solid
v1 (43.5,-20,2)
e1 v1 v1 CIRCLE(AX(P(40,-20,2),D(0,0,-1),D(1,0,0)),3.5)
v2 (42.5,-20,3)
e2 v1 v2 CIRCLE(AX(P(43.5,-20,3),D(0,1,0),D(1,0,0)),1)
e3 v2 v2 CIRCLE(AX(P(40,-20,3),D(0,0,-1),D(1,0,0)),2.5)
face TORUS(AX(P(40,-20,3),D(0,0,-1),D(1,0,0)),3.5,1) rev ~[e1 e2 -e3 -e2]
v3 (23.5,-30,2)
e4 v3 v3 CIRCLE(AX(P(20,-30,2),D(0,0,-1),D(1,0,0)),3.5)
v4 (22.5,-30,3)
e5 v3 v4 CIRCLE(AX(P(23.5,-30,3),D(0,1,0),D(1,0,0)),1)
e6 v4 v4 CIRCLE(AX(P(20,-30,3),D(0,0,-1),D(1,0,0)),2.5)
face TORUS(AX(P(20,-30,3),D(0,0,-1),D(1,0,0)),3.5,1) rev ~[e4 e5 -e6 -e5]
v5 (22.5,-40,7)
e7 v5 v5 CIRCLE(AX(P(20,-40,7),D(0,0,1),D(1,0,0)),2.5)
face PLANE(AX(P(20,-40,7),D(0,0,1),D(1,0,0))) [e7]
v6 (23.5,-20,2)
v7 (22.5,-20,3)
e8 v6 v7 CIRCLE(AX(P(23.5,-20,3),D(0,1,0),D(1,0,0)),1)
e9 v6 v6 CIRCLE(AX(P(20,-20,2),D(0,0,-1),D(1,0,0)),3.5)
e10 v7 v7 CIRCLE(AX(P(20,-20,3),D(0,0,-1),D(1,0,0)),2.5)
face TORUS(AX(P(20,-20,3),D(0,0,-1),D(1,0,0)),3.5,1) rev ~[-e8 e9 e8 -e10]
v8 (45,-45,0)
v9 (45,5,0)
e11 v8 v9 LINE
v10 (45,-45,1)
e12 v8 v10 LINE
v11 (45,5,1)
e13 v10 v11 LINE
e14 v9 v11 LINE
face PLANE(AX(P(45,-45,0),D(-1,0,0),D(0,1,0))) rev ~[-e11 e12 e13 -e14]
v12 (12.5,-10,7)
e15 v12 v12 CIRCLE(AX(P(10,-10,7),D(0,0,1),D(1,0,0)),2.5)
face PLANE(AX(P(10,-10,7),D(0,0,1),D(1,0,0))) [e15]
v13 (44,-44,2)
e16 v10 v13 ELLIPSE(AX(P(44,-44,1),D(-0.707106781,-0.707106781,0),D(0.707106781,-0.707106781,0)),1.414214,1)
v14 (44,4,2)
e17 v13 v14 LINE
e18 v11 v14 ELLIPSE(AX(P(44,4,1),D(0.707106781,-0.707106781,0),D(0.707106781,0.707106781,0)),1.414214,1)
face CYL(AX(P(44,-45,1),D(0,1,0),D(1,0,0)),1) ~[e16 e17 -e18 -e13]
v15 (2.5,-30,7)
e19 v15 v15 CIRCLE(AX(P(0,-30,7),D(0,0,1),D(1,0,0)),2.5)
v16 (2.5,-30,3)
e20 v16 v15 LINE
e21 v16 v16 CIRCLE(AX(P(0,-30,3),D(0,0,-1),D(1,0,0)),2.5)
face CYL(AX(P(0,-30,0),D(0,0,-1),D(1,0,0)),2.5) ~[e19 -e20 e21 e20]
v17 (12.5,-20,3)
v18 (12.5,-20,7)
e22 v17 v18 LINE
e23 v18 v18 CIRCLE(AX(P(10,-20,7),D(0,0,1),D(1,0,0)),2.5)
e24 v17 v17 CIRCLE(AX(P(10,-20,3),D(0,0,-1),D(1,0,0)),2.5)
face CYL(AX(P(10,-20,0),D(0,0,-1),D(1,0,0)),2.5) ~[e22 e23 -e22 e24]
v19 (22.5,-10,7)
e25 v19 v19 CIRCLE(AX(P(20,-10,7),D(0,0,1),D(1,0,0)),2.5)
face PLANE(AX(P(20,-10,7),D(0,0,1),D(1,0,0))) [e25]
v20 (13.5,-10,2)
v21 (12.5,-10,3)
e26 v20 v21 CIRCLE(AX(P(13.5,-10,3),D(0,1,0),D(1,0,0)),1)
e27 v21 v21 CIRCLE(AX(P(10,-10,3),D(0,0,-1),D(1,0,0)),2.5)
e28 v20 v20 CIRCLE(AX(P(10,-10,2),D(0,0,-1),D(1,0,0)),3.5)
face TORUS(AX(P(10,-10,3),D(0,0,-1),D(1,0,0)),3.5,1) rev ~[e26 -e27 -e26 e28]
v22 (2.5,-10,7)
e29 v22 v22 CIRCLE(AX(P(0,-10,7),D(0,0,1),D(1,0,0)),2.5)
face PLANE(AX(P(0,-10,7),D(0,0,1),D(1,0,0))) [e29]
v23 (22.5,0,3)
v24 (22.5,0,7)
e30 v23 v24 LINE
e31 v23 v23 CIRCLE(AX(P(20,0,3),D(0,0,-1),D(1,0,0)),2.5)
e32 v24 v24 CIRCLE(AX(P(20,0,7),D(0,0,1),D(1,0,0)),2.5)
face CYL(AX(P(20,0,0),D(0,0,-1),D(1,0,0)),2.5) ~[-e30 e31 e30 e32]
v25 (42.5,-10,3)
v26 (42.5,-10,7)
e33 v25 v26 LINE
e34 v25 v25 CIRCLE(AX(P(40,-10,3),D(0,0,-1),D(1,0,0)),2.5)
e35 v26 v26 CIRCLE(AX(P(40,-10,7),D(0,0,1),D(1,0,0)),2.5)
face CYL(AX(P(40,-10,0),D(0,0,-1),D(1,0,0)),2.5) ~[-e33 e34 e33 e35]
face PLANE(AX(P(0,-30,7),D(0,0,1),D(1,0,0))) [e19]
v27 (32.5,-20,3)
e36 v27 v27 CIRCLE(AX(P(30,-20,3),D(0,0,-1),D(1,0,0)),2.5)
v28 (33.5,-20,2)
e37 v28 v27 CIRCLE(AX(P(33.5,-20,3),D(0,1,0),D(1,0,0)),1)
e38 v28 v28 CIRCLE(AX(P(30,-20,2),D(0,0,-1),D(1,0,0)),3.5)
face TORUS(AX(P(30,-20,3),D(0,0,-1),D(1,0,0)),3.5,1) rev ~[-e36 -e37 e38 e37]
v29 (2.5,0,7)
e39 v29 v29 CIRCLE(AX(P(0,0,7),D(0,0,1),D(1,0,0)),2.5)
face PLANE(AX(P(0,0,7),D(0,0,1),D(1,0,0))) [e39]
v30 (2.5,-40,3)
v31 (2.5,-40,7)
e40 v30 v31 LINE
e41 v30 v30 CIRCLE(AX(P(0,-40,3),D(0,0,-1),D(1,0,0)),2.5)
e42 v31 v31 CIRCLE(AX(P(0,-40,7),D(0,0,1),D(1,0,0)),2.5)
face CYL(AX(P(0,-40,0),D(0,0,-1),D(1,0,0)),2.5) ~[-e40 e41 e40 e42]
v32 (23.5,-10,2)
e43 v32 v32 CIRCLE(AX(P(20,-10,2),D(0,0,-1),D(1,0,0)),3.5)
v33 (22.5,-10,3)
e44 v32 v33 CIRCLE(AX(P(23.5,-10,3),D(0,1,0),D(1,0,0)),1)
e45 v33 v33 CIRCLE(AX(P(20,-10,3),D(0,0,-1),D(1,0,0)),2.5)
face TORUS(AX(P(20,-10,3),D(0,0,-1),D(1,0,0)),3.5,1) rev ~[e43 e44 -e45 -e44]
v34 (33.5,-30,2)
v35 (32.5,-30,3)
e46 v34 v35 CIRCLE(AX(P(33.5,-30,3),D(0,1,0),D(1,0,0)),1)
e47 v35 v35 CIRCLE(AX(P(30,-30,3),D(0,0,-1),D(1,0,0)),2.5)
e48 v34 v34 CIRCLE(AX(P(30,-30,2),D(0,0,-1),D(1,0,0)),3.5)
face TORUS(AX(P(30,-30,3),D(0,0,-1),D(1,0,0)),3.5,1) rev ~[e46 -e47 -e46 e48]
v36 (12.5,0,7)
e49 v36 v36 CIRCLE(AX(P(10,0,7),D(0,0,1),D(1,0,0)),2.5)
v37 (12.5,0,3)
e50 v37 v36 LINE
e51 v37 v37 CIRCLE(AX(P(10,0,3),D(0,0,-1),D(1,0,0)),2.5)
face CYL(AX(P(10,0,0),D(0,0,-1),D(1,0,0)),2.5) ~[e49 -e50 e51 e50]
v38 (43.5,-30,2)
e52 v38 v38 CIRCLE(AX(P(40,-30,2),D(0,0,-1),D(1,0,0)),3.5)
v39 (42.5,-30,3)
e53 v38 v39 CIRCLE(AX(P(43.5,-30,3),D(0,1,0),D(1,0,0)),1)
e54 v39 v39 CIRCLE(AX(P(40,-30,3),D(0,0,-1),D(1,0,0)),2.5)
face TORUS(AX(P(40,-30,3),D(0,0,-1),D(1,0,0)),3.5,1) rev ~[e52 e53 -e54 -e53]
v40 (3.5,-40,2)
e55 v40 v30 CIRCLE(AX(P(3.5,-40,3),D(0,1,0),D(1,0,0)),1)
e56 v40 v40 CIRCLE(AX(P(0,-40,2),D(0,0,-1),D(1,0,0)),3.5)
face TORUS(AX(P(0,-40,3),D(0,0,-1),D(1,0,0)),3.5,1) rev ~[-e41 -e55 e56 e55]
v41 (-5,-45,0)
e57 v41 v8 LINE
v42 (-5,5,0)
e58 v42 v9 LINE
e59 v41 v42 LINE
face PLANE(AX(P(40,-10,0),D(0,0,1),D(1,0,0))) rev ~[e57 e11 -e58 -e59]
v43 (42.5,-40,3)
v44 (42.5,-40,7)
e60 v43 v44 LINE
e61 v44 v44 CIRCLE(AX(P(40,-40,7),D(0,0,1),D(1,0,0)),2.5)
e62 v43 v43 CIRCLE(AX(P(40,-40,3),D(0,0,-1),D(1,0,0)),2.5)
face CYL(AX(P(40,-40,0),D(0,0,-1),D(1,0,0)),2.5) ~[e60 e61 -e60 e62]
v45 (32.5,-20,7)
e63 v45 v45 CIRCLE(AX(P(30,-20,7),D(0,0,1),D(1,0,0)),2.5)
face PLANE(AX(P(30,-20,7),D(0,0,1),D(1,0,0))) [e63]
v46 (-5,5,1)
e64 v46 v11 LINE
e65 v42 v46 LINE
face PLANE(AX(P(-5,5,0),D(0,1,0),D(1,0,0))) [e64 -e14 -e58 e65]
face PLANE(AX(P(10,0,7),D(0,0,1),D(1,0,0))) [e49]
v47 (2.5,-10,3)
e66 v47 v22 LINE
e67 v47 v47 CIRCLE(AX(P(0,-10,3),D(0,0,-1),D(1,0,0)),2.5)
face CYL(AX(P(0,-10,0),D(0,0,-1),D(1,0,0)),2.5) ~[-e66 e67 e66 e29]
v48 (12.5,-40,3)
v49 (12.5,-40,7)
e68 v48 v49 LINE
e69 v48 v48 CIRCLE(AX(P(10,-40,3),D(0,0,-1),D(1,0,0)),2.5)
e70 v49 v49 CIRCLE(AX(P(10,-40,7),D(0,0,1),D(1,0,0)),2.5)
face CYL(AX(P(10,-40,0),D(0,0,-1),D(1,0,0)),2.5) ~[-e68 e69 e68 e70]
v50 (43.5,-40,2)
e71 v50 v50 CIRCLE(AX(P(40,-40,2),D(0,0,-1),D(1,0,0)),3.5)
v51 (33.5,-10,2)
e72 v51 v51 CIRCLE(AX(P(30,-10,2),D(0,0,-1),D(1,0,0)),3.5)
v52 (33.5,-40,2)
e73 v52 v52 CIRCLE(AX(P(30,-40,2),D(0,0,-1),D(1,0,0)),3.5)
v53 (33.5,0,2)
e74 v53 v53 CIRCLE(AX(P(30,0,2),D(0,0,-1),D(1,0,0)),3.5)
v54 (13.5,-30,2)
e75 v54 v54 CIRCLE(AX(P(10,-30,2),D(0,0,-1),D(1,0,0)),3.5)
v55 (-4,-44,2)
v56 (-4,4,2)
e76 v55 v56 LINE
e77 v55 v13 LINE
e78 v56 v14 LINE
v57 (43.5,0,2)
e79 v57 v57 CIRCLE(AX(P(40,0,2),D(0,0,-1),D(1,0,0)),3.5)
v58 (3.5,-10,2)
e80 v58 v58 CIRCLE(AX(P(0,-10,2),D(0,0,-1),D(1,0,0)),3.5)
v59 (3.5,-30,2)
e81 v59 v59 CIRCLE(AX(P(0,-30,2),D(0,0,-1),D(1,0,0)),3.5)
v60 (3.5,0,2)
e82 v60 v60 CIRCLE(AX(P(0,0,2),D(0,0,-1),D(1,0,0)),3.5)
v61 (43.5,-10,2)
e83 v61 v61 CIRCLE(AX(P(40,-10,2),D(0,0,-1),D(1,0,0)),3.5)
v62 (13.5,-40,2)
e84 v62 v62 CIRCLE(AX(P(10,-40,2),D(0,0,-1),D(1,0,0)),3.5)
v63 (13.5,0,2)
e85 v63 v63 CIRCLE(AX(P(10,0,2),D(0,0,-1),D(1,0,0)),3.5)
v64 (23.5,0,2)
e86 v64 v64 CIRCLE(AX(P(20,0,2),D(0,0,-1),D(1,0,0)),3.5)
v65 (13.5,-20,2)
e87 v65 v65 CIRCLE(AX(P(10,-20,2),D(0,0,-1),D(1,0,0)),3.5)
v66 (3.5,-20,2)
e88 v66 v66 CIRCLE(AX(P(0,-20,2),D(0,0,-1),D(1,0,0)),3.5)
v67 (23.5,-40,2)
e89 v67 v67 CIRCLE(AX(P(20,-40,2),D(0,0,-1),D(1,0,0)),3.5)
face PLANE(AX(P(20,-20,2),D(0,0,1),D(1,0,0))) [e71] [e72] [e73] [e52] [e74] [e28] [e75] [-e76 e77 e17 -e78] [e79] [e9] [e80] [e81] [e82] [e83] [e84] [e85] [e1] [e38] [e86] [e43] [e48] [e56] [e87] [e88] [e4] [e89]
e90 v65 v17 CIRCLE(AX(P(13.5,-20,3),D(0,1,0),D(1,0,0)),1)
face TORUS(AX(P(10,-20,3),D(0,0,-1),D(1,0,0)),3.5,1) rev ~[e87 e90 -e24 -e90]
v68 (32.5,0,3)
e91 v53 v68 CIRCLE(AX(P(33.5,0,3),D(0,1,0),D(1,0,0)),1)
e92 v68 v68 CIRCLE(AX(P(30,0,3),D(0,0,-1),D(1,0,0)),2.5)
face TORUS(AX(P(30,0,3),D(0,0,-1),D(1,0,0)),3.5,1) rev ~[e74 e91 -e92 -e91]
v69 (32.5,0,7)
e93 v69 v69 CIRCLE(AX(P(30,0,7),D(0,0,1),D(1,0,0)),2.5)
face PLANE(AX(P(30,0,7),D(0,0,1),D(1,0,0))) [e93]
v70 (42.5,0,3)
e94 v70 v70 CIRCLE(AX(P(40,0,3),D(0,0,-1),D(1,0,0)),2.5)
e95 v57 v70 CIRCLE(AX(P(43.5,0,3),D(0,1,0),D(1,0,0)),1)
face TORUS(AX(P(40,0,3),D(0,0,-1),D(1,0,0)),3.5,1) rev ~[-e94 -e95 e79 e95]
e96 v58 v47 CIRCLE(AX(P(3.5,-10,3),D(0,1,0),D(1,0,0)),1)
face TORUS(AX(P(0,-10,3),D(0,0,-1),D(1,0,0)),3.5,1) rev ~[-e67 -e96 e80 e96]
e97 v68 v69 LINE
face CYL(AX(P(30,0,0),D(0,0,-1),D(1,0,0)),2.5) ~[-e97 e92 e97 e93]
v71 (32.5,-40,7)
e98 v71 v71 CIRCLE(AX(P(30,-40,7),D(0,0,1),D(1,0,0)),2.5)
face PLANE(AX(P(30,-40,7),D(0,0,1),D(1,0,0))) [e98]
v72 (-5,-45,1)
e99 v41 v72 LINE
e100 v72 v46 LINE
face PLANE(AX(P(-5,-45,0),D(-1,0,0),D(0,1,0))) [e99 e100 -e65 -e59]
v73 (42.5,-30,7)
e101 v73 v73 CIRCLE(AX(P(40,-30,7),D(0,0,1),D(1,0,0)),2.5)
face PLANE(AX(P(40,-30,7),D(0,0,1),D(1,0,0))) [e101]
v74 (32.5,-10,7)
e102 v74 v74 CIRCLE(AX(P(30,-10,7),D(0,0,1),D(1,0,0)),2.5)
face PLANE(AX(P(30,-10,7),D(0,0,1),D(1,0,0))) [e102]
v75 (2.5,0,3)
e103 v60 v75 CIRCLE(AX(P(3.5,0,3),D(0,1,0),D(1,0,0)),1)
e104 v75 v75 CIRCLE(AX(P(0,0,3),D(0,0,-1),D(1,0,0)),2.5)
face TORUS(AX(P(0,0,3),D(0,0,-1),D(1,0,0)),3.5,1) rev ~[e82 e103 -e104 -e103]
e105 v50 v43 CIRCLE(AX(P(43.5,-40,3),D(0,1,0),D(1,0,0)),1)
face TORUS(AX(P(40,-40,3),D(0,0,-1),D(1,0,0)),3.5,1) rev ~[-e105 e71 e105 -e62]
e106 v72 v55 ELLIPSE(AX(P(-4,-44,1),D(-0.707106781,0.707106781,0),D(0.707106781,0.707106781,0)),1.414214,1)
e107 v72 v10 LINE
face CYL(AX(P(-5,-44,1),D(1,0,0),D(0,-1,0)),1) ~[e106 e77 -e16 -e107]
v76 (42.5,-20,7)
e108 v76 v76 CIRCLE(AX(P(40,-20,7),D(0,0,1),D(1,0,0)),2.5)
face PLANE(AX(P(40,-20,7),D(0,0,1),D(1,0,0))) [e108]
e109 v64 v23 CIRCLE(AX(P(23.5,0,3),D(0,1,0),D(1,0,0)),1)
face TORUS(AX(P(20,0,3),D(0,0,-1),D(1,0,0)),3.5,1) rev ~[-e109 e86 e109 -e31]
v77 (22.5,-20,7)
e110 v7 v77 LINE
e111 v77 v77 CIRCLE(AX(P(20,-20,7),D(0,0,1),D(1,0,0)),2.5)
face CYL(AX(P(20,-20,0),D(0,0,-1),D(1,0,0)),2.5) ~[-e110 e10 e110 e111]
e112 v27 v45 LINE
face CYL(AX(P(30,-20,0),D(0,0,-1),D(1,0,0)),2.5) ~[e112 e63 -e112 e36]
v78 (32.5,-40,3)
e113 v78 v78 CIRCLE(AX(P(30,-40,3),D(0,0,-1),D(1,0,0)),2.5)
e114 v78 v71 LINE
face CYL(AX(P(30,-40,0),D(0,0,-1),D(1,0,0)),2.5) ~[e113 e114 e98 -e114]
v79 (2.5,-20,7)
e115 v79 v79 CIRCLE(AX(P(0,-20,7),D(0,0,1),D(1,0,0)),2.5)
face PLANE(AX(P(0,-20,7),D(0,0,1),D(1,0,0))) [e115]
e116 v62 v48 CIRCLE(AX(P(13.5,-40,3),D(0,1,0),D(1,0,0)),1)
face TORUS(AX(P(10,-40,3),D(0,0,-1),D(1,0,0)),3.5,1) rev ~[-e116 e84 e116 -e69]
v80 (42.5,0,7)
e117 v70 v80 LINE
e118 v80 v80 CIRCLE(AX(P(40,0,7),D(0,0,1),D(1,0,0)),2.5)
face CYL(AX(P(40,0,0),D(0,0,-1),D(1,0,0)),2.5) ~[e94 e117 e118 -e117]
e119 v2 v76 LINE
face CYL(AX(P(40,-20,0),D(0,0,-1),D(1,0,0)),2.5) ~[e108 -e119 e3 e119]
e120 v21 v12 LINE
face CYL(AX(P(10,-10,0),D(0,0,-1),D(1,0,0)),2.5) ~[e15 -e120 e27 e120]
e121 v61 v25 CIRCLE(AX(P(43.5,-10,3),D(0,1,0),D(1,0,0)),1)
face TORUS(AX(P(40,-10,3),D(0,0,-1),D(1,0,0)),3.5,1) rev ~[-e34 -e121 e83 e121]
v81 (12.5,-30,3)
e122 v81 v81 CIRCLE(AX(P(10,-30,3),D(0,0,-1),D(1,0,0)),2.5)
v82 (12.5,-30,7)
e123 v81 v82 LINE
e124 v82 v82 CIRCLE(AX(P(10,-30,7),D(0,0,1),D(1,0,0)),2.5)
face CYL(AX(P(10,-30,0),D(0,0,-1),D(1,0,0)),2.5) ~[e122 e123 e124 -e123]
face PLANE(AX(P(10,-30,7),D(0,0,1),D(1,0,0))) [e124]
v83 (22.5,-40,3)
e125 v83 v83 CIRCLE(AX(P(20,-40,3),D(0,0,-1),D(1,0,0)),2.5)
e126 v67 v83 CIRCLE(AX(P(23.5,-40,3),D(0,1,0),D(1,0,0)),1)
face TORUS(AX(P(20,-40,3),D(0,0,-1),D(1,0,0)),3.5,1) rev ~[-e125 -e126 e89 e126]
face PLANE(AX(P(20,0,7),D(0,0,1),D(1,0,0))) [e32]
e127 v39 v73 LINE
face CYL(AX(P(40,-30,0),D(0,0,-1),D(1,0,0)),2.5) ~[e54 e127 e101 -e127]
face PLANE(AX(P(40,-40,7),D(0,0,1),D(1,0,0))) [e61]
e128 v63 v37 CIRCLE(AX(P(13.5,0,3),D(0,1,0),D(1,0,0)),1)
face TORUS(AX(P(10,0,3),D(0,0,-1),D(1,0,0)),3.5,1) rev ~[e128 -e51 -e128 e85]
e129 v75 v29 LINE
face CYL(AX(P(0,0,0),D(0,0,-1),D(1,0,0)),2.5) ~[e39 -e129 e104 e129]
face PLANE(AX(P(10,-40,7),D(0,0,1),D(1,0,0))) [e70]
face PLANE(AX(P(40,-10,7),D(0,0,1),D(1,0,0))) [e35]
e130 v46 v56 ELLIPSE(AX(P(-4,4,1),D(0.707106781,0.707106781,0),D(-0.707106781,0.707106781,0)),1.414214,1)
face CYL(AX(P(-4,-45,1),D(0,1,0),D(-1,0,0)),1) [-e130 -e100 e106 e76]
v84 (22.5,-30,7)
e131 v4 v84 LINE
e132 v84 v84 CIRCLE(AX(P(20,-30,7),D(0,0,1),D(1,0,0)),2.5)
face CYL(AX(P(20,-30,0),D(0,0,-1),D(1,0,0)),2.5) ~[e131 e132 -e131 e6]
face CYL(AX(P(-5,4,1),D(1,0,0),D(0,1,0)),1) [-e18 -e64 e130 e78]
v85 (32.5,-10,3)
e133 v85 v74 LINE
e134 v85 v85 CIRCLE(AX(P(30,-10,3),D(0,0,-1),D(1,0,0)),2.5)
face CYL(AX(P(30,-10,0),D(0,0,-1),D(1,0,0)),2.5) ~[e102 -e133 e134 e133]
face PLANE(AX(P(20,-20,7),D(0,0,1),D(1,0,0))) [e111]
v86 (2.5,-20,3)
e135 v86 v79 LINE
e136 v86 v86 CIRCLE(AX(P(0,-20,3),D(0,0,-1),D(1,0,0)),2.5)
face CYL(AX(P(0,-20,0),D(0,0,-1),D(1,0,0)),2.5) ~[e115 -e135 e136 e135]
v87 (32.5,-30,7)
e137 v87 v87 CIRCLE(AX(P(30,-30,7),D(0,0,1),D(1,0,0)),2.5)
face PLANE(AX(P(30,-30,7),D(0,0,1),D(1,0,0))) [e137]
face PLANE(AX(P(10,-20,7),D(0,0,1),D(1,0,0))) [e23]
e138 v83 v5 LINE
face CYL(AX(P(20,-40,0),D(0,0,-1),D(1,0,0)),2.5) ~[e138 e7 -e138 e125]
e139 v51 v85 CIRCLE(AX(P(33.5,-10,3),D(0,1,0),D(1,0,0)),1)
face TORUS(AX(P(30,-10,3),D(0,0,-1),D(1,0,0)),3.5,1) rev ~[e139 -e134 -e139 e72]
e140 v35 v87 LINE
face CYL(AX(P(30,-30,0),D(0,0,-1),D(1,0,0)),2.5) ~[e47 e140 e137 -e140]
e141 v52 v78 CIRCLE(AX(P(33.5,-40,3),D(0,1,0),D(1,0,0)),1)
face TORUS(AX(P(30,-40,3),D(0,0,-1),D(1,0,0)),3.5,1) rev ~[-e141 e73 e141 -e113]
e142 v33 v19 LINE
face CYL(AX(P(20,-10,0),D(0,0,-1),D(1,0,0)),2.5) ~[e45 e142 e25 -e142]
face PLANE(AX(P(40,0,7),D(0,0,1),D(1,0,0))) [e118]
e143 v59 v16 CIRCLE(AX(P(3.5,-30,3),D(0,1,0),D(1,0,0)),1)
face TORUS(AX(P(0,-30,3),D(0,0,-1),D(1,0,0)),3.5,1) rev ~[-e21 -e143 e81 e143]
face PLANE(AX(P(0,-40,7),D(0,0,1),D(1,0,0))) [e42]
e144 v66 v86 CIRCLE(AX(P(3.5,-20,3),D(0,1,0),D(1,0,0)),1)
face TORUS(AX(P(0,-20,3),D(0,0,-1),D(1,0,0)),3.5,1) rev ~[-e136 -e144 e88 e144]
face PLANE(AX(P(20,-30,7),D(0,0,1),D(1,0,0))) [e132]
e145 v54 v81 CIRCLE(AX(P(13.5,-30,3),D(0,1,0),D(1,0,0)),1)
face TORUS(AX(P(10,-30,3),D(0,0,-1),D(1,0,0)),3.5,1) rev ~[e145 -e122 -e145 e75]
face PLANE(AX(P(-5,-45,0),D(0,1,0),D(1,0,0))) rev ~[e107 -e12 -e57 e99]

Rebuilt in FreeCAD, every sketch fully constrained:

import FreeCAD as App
import Part
import Sketcher


def edges_at(feature, points):
    """Names of the edges that pass closest to the given points."""
    edges = feature.Shape.Edges
    near = lambda p: min(range(len(edges)), key=lambda i: edges[i].distToShape(Part.Vertex(*p))[0])
    return sorted({f"Edge{near(p) + 1}" for p in points})

doc = App.newDocument("Part")
body = doc.addObject("PartDesign::Body", "Body")

# Sketch on XY plane
sketch1 = body.newObject("Sketcher::SketchObject", "Sketch")
sketch1.AttachmentSupport = (doc.getObject("XY_Plane"), [""])
sketch1.MapMode = "FlatFace"
sketch1.addGeometry([
    Part.LineSegment(App.Vector(-5, 5, 0), App.Vector(-5, -45, 0)),
    Part.LineSegment(App.Vector(-5, -45, 0), App.Vector(45, -45, 0)),
    Part.LineSegment(App.Vector(45, -45, 0), App.Vector(45, 5, 0)),
    Part.LineSegment(App.Vector(45, 5, 0), App.Vector(-5, 5, 0)),
], False)
sketch1.addConstraint([
    Sketcher.Constraint("Coincident", 0, 2, 1, 1),
    Sketcher.Constraint("Coincident", 1, 2, 2, 1),
    Sketcher.Constraint("Coincident", 2, 2, 3, 1),
    Sketcher.Constraint("Coincident", 3, 2, 0, 1),
    Sketcher.Constraint("Vertical", 0),
    Sketcher.Constraint("Horizontal", 1),
    Sketcher.Constraint("Vertical", 2),
    Sketcher.Constraint("Horizontal", 3),
    Sketcher.Constraint("Equal", 3, 0),
    Sketcher.Constraint("DistanceX", 1, 1, 1, 2, 50.0),
    Sketcher.Constraint("DistanceX", 0, 2, -1, 1, 5.0),
    Sketcher.Constraint("DistanceY", 0, 2, -1, 1, 45.0),
])
pad1 = body.newObject("PartDesign::Pad", "Pad")
pad1.Profile = sketch1
pad1.Length = 2

# Sketch on XY plane
sketch2 = body.newObject("Sketcher::SketchObject", "Sketch001")
sketch2.AttachmentSupport = (doc.getObject("XY_Plane"), [""])
sketch2.MapMode = "FlatFace"
sketch2.addGeometry(Part.Circle(App.Vector(0, 0, 0), App.Vector(0, 0, 1), 2.5), False)
sketch2.addConstraint([
    Sketcher.Constraint("Coincident", 0, 3, -1, 1),
    Sketcher.Constraint("Diameter", 0, 5.0),
])
pad2 = body.newObject("PartDesign::Pad", "Pad001")
pad2.Profile = sketch2
pad2.Length = 7

# Sketch on XY plane
sketch3 = body.newObject("Sketcher::SketchObject", "Sketch002")
sketch3.AttachmentSupport = (doc.getObject("XY_Plane"), [""])
sketch3.MapMode = "FlatFace"
sketch3.addGeometry(Part.Circle(App.Vector(10, 0, 0), App.Vector(0, 0, 1), 2.5), False)
sketch3.addConstraint([
    Sketcher.Constraint("PointOnObject", 0, 3, -1),
    Sketcher.Constraint("Diameter", 0, 5.0),
    Sketcher.Constraint("DistanceX", -1, 1, 0, 3, 10.0),
])
pad3 = body.newObject("PartDesign::Pad", "Pad002")
pad3.Profile = sketch3
pad3.Length = 7

# Sketch on XY plane
sketch4 = body.newObject("Sketcher::SketchObject", "Sketch003")
sketch4.AttachmentSupport = (doc.getObject("XY_Plane"), [""])
sketch4.MapMode = "FlatFace"
sketch4.addGeometry(Part.Circle(App.Vector(20, 0, 0), App.Vector(0, 0, 1), 2.5), False)
sketch4.addConstraint([
    Sketcher.Constraint("PointOnObject", 0, 3, -1),
    Sketcher.Constraint("Diameter", 0, 5.0),
    Sketcher.Constraint("DistanceX", -1, 1, 0, 3, 20.0),
])
pad4 = body.newObject("PartDesign::Pad", "Pad003")
pad4.Profile = sketch4
pad4.Length = 7

# Sketch on XY plane
sketch5 = body.newObject("Sketcher::SketchObject", "Sketch004")
sketch5.AttachmentSupport = (doc.getObject("XY_Plane"), [""])
sketch5.MapMode = "FlatFace"
sketch5.addGeometry(Part.Circle(App.Vector(30, 0, 0), App.Vector(0, 0, 1), 2.5), False)
sketch5.addConstraint([
    Sketcher.Constraint("PointOnObject", 0, 3, -1),
    Sketcher.Constraint("Diameter", 0, 5.0),
    Sketcher.Constraint("DistanceX", -1, 1, 0, 3, 30.0),
])
pad5 = body.newObject("PartDesign::Pad", "Pad004")
pad5.Profile = sketch5
pad5.Length = 7

# Sketch on XY plane
sketch6 = body.newObject("Sketcher::SketchObject", "Sketch005")
sketch6.AttachmentSupport = (doc.getObject("XY_Plane"), [""])
sketch6.MapMode = "FlatFace"
sketch6.addGeometry(Part.Circle(App.Vector(40, 0, 0), App.Vector(0, 0, 1), 2.5), False)
sketch6.addConstraint([
    Sketcher.Constraint("PointOnObject", 0, 3, -1),
    Sketcher.Constraint("Diameter", 0, 5.0),
    Sketcher.Constraint("DistanceX", -1, 1, 0, 3, 40.0),
])
pad6 = body.newObject("PartDesign::Pad", "Pad005")
pad6.Profile = sketch6
pad6.Length = 7
doc.recompute()

linearpattern = body.newObject("PartDesign::LinearPattern", "LinearPattern")
linearpattern.Originals = [pad2, pad3, pad4, pad5, pad6]
linearpattern.Direction = (doc.getObject("Y_Axis"), [""])
linearpattern.Mode = "offset"
linearpattern.Offset = 10
linearpattern.Occurrences = 5
linearpattern.Reversed = True
body.Tip = linearpattern
doc.recompute()

fillet = body.newObject("PartDesign::Fillet", "Fillet")
fillet.Base = (linearpattern, edges_at(linearpattern, [
    (-5, -20, 2),
    (20, 5, 2),
    (20, -45, 2),
    (45, -20, 2),
    (-2.5, -40, 2),
    (7.5, -40, 2),
    (-2.5, -30, 2),
    (7.5, -30, 2),
    (17.5, -40, 2),
    (27.5, -40, 2),
    (37.5, -40, 2),
    (17.5, -30, 2),
    (27.5, -30, 2),
    (37.5, -30, 2),
    (-2.5, -20, 2),
    (-2.5, -10, 2),
    (7.5, -20, 2),
    (7.5, -10, 2),
    (-2.5, 0, 2),
    (7.5, 0, 2),
    (17.5, -20, 2),
    (27.5, -20, 2),
    (17.5, -10, 2),
    (27.5, -10, 2),
    (37.5, -20, 2),
    (37.5, -10, 2),
    (17.5, 0, 2),
    (27.5, 0, 2),
    (37.5, 0, 2),
]))
fillet.Radius = 1

doc.recompute()
